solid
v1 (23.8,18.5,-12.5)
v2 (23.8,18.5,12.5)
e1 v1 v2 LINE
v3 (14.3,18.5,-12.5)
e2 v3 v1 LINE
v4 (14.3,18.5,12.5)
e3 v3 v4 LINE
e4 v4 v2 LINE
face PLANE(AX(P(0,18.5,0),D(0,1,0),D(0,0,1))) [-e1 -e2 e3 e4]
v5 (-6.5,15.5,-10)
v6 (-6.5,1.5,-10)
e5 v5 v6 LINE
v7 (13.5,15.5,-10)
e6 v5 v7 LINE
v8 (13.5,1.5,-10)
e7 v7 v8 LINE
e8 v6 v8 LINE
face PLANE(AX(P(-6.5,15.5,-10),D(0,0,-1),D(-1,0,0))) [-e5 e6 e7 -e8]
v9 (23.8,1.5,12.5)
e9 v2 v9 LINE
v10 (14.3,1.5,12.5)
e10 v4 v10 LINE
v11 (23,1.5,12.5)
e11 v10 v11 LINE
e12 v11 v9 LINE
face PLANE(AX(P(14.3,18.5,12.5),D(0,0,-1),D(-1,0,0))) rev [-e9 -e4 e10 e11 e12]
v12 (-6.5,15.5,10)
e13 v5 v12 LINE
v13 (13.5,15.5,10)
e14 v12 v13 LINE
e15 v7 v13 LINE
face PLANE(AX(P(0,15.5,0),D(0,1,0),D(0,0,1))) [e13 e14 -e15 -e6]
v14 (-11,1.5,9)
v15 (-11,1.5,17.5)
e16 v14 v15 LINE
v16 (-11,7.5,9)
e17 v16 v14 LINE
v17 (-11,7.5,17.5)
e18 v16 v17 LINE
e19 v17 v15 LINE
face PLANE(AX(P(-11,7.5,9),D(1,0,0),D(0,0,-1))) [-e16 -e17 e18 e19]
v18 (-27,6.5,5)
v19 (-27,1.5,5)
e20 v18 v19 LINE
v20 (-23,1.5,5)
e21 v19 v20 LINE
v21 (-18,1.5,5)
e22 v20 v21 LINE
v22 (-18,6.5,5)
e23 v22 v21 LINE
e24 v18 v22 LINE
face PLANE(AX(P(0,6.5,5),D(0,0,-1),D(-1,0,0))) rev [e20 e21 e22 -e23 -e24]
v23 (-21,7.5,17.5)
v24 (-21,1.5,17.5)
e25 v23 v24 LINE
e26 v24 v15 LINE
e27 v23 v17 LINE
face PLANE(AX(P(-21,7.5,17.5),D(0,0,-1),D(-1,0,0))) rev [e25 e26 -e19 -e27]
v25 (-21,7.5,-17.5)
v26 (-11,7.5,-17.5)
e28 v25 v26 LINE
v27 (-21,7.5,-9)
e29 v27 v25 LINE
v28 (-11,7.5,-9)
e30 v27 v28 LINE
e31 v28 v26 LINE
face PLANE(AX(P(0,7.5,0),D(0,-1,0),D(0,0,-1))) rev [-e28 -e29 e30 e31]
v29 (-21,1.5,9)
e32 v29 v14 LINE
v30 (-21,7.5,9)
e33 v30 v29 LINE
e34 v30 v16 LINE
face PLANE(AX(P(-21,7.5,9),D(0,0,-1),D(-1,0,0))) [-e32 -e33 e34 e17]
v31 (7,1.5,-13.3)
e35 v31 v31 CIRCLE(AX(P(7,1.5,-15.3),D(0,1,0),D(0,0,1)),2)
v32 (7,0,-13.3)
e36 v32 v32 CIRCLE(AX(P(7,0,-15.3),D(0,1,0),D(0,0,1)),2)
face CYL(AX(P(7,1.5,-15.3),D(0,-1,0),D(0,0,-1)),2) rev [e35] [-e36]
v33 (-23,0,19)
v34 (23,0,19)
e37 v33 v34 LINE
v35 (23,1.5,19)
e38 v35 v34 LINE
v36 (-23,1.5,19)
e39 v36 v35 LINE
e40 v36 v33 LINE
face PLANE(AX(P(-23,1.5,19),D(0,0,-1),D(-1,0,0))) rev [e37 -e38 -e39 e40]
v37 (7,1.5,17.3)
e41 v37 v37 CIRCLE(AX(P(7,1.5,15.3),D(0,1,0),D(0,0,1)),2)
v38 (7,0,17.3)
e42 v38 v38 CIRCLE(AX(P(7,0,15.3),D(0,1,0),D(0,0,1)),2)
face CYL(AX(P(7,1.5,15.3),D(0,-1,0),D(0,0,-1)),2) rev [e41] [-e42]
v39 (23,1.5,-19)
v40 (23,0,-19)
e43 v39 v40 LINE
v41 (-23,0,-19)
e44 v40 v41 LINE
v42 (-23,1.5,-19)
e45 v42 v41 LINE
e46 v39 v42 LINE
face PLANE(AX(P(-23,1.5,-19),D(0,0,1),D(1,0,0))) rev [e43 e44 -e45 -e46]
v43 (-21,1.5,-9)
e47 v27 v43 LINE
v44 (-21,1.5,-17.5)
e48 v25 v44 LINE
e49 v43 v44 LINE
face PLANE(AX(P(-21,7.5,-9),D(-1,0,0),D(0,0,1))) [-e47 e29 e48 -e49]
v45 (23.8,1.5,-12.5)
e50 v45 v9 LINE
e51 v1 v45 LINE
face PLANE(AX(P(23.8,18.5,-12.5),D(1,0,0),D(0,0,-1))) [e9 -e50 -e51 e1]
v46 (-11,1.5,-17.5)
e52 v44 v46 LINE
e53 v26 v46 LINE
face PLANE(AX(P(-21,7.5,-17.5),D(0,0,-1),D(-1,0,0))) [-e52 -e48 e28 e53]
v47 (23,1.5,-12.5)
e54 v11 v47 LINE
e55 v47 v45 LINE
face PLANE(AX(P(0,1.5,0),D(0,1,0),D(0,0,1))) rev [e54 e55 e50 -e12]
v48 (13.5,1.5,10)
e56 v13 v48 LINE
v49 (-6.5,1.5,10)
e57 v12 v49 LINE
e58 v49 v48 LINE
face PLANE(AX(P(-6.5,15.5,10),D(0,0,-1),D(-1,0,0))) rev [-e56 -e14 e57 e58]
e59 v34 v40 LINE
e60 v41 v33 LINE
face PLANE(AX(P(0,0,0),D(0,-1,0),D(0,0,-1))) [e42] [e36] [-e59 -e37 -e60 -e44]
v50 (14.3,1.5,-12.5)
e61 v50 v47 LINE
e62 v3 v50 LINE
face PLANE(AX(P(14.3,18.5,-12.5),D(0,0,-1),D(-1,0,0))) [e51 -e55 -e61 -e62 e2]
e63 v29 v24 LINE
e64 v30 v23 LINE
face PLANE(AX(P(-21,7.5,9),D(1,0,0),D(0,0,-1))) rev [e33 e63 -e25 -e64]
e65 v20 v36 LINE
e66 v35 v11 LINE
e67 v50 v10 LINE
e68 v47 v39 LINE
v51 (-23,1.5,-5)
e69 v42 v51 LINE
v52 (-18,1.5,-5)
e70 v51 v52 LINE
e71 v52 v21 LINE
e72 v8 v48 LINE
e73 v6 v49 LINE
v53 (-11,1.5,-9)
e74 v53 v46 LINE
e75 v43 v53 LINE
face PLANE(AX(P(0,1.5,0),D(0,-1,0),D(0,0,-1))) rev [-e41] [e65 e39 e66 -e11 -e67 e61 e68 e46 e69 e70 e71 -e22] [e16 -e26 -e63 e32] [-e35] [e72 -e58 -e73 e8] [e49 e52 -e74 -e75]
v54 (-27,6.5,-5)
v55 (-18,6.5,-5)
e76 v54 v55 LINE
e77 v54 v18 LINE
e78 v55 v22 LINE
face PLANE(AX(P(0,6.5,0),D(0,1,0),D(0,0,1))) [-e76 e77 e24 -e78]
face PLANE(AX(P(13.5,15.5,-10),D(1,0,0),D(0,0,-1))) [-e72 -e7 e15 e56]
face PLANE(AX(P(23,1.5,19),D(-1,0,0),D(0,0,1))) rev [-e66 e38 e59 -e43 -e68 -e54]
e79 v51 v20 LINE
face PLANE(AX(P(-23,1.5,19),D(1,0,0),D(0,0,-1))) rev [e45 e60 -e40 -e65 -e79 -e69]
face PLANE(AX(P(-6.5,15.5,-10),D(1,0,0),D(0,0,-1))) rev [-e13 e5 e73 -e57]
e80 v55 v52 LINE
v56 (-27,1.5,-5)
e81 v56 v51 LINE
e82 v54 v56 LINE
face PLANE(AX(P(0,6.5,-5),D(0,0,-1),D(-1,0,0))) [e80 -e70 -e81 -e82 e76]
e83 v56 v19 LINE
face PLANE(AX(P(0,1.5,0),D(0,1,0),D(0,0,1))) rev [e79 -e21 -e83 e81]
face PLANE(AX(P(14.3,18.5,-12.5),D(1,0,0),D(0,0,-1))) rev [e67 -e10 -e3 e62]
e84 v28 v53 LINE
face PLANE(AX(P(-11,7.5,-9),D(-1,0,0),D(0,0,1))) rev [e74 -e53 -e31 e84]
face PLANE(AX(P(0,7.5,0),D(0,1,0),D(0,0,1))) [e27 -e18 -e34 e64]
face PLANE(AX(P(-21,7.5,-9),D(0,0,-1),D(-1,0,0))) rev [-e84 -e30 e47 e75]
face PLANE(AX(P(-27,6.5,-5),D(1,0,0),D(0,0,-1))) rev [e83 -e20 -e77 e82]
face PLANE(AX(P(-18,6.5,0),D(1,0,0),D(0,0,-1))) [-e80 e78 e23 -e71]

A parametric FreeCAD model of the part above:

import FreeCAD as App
import Part
import Sketcher
Q = App.Units.Quantity


def add_polygon(sketch, points):
    """Adds a closed chain of lines whose ends are joined by coincident constraints."""
    first, n = sketch.GeometryCount, len(points)
    for a, b in zip(points, points[1:] + points[:1]):
        sketch.addGeometry(Part.LineSegment(App.Vector(*a, 0), App.Vector(*b, 0)), False)
    for i in range(n):
        sketch.addConstraint(Sketcher.Constraint("Coincident", first + i, 2, first + (i + 1) % n, 1))

doc = App.newDocument("Part")
body = doc.addObject("PartDesign::Body", "Body")

# Sketch on XZ plane
sketch1 = body.newObject("Sketcher::SketchObject", "Sketch")
sketch1.AttachmentSupport = (doc.getObject("XZ_Plane"), [""])
sketch1.MapMode = "FlatFace"
add_polygon(sketch1, [(-23, -19), (-23, 19), (23, 19), (23, -19)])  # lines 0-3
sketch1.addGeometry(Part.Circle(App.Vector(7, 15.3, 0), App.Vector(0, 0, 1), 2), False)  # 4
sketch1.addGeometry(Part.Circle(App.Vector(7, -15.3, 0), App.Vector(0, 0, 1), 2), False)  # 5
sketch1.addConstraint(Sketcher.Constraint("Vertical", 0))
sketch1.addConstraint(Sketcher.Constraint("Horizontal", 1))
sketch1.addConstraint(Sketcher.Constraint("Vertical", 2))
sketch1.addConstraint(Sketcher.Constraint("Horizontal", 3))
sketch1.addConstraint(Sketcher.Constraint("Equal", 4, 5))
sketch1.addConstraint(Sketcher.Constraint("Symmetric", 0, 2, 2, 2, -1, 1))
sketch1.addConstraint(Sketcher.Constraint("Symmetric", 4, 3, 5, 3, -1))
sketch1.addConstraint(Sketcher.Constraint("Diameter", 4, Q("4 mm")))
sketch1.addConstraint(Sketcher.Constraint("DistanceX", 1, 1, 1, 2, Q("46 mm")))
sketch1.addConstraint(Sketcher.Constraint("DistanceY", 0, 1, 0, 2, Q("38 mm")))
sketch1.addConstraint(Sketcher.Constraint("DistanceX", -1, 1, 4, 3, Q("7 mm")))
sketch1.addConstraint(Sketcher.Constraint("DistanceY", -1, 1, 4, 3, Q("15.3 mm")))
pad1 = body.newObject("PartDesign::Pad", "Pad")
pad1.Profile = sketch1
pad1.Length = 1.5
pad1.Reversed = True

# Sketch on XZ plane
sketch2 = body.newObject("Sketcher::SketchObject", "Sketch001")
sketch2.AttachmentSupport = (doc.getObject("XZ_Plane"), [""])
sketch2.MapMode = "FlatFace"
sketch2.AttachmentOffset = App.Placement(App.Vector(0, 0, -1.5), App.Rotation())
add_polygon(sketch2, [(-27, -5), (-27, 5), (-18, 5), (-18, -5)])  # lines 0-3
sketch2.addConstraint(Sketcher.Constraint("Vertical", 0))
sketch2.addConstraint(Sketcher.Constraint("Horizontal", 1))
sketch2.addConstraint(Sketcher.Constraint("Vertical", 2))
sketch2.addConstraint(Sketcher.Constraint("Horizontal", 3))
sketch2.addConstraint(Sketcher.Constraint("DistanceX", 1, 1, 1, 2, Q("9 mm")))
sketch2.addConstraint(Sketcher.Constraint("DistanceY", 0, 1, 0, 2, Q("10 mm")))
sketch2.addConstraint(Sketcher.Constraint("DistanceX", 0, 2, -1, 1, Q("27 mm")))
sketch2.addConstraint(Sketcher.Constraint("DistanceY", -1, 1, 0, 2, Q("5 mm")))
pad2 = body.newObject("PartDesign::Pad", "Pad001")
pad2.Profile = sketch2
pad2.Length = 5
pad2.Reversed = True

# Sketch on XZ plane
sketch3 = body.newObject("Sketcher::SketchObject", "Sketch002")
sketch3.AttachmentSupport = (doc.getObject("XZ_Plane"), [""])
sketch3.MapMode = "FlatFace"
sketch3.AttachmentOffset = App.Placement(App.Vector(0, 0, -1.5), App.Rotation())
add_polygon(sketch3, [(-21, 9), (-21, 17.5), (-11, 17.5), (-11, 9)])  # lines 0-3
add_polygon(sketch3, [(-21, -17.5), (-21, -9), (-11, -9), (-11, -17.5)])  # lines 4-7
sketch3.addConstraint(Sketcher.Constraint("Vertical", 0))
sketch3.addConstraint(Sketcher.Constraint("Horizontal", 1))
sketch3.addConstraint(Sketcher.Constraint("Vertical", 2))
sketch3.addConstraint(Sketcher.Constraint("Horizontal", 3))
sketch3.addConstraint(Sketcher.Constraint("Vertical", 4))
sketch3.addConstraint(Sketcher.Constraint("Horizontal", 5))
sketch3.addConstraint(Sketcher.Constraint("Vertical", 6))
sketch3.addConstraint(Sketcher.Constraint("Horizontal", 7))
sketch3.addConstraint(Sketcher.Constraint("Symmetric", 3, 2, 4, 2, -1))
sketch3.addConstraint(Sketcher.Constraint("Symmetric", 1, 2, 6, 2, -1))
sketch3.addConstraint(Sketcher.Constraint("DistanceX", 1, 1, 1, 2, Q("10 mm")))
sketch3.addConstraint(Sketcher.Constraint("DistanceY", 0, 1, 0, 2, Q("8.5 mm")))
sketch3.addConstraint(Sketcher.Constraint("DistanceX", 0, 2, -1, 1, Q("21 mm")))
sketch3.addConstraint(Sketcher.Constraint("DistanceY", -1, 1, 2, 2, Q("9 mm")))
pad3 = body.newObject("PartDesign::Pad", "Pad002")
pad3.Profile = sketch3
pad3.Length = 6
pad3.Reversed = True

# Sketch on XZ plane
sketch4 = body.newObject("Sketcher::SketchObject", "Sketch003")
sketch4.AttachmentSupport = (doc.getObject("XZ_Plane"), [""])
sketch4.MapMode = "FlatFace"
sketch4.AttachmentOffset = App.Placement(App.Vector(0, 0, -1.5), App.Rotation())
add_polygon(sketch4, [(-6.5, -10), (-6.5, 10), (13.5, 10), (13.5, -10)])  # lines 0-3
sketch4.addConstraint(Sketcher.Constraint("Vertical", 0))
sketch4.addConstraint(Sketcher.Constraint("Horizontal", 1))
sketch4.addConstraint(Sketcher.Constraint("Vertical", 2))
sketch4.addConstraint(Sketcher.Constraint("Horizontal", 3))
sketch4.addConstraint(Sketcher.Constraint("Equal", 3, 0))
sketch4.addConstraint(Sketcher.Constraint("DistanceX", 1, 1, 1, 2, Q("20 mm")))
sketch4.addConstraint(Sketcher.Constraint("DistanceY", -1, 1, 0, 2, Q("10 mm")))
sketch4.addConstraint(Sketcher.Constraint("DistanceX", 0, 2, -1, 1, Q("6.5 mm")))
pad4 = body.newObject("PartDesign::Pad", "Pad003")
pad4.Profile = sketch4
pad4.Length = 14
pad4.Reversed = True

# Sketch on XZ plane
sketch5 = body.newObject("Sketcher::SketchObject", "Sketch004")
sketch5.AttachmentSupport = (doc.getObject("XZ_Plane"), [""])
sketch5.MapMode = "FlatFace"
sketch5.AttachmentOffset = App.Placement(App.Vector(0, 0, -1.5), App.Rotation())
add_polygon(sketch5, [(14.3, -12.5), (14.3, 12.5), (23.8, 12.5), (23.8, -12.5)])  # lines 0-3
sketch5.addConstraint(Sketcher.Constraint("Vertical", 0))
sketch5.addConstraint(Sketcher.Constraint("Horizontal", 1))
sketch5.addConstraint(Sketcher.Constraint("Vertical", 2))
sketch5.addConstraint(Sketcher.Constraint("Horizontal", 3))
sketch5.addConstraint(Sketcher.Constraint("DistanceY", 0, 1, 0, 2, Q("25 mm")))
sketch5.addConstraint(Sketcher.Constraint("DistanceX", 1, 1, 1, 2, Q("9.5 mm")))
sketch5.addConstraint(Sketcher.Constraint("DistanceX", -1, 1, 0, 2, Q("14.3 mm")))
sketch5.addConstraint(Sketcher.Constraint("DistanceY", -1, 1, 0, 2, Q("12.5 mm")))
pad5 = body.newObject("PartDesign::Pad", "Pad004")
pad5.Profile = sketch5
pad5.Length = 17
pad5.Reversed = True

doc.recompute()
